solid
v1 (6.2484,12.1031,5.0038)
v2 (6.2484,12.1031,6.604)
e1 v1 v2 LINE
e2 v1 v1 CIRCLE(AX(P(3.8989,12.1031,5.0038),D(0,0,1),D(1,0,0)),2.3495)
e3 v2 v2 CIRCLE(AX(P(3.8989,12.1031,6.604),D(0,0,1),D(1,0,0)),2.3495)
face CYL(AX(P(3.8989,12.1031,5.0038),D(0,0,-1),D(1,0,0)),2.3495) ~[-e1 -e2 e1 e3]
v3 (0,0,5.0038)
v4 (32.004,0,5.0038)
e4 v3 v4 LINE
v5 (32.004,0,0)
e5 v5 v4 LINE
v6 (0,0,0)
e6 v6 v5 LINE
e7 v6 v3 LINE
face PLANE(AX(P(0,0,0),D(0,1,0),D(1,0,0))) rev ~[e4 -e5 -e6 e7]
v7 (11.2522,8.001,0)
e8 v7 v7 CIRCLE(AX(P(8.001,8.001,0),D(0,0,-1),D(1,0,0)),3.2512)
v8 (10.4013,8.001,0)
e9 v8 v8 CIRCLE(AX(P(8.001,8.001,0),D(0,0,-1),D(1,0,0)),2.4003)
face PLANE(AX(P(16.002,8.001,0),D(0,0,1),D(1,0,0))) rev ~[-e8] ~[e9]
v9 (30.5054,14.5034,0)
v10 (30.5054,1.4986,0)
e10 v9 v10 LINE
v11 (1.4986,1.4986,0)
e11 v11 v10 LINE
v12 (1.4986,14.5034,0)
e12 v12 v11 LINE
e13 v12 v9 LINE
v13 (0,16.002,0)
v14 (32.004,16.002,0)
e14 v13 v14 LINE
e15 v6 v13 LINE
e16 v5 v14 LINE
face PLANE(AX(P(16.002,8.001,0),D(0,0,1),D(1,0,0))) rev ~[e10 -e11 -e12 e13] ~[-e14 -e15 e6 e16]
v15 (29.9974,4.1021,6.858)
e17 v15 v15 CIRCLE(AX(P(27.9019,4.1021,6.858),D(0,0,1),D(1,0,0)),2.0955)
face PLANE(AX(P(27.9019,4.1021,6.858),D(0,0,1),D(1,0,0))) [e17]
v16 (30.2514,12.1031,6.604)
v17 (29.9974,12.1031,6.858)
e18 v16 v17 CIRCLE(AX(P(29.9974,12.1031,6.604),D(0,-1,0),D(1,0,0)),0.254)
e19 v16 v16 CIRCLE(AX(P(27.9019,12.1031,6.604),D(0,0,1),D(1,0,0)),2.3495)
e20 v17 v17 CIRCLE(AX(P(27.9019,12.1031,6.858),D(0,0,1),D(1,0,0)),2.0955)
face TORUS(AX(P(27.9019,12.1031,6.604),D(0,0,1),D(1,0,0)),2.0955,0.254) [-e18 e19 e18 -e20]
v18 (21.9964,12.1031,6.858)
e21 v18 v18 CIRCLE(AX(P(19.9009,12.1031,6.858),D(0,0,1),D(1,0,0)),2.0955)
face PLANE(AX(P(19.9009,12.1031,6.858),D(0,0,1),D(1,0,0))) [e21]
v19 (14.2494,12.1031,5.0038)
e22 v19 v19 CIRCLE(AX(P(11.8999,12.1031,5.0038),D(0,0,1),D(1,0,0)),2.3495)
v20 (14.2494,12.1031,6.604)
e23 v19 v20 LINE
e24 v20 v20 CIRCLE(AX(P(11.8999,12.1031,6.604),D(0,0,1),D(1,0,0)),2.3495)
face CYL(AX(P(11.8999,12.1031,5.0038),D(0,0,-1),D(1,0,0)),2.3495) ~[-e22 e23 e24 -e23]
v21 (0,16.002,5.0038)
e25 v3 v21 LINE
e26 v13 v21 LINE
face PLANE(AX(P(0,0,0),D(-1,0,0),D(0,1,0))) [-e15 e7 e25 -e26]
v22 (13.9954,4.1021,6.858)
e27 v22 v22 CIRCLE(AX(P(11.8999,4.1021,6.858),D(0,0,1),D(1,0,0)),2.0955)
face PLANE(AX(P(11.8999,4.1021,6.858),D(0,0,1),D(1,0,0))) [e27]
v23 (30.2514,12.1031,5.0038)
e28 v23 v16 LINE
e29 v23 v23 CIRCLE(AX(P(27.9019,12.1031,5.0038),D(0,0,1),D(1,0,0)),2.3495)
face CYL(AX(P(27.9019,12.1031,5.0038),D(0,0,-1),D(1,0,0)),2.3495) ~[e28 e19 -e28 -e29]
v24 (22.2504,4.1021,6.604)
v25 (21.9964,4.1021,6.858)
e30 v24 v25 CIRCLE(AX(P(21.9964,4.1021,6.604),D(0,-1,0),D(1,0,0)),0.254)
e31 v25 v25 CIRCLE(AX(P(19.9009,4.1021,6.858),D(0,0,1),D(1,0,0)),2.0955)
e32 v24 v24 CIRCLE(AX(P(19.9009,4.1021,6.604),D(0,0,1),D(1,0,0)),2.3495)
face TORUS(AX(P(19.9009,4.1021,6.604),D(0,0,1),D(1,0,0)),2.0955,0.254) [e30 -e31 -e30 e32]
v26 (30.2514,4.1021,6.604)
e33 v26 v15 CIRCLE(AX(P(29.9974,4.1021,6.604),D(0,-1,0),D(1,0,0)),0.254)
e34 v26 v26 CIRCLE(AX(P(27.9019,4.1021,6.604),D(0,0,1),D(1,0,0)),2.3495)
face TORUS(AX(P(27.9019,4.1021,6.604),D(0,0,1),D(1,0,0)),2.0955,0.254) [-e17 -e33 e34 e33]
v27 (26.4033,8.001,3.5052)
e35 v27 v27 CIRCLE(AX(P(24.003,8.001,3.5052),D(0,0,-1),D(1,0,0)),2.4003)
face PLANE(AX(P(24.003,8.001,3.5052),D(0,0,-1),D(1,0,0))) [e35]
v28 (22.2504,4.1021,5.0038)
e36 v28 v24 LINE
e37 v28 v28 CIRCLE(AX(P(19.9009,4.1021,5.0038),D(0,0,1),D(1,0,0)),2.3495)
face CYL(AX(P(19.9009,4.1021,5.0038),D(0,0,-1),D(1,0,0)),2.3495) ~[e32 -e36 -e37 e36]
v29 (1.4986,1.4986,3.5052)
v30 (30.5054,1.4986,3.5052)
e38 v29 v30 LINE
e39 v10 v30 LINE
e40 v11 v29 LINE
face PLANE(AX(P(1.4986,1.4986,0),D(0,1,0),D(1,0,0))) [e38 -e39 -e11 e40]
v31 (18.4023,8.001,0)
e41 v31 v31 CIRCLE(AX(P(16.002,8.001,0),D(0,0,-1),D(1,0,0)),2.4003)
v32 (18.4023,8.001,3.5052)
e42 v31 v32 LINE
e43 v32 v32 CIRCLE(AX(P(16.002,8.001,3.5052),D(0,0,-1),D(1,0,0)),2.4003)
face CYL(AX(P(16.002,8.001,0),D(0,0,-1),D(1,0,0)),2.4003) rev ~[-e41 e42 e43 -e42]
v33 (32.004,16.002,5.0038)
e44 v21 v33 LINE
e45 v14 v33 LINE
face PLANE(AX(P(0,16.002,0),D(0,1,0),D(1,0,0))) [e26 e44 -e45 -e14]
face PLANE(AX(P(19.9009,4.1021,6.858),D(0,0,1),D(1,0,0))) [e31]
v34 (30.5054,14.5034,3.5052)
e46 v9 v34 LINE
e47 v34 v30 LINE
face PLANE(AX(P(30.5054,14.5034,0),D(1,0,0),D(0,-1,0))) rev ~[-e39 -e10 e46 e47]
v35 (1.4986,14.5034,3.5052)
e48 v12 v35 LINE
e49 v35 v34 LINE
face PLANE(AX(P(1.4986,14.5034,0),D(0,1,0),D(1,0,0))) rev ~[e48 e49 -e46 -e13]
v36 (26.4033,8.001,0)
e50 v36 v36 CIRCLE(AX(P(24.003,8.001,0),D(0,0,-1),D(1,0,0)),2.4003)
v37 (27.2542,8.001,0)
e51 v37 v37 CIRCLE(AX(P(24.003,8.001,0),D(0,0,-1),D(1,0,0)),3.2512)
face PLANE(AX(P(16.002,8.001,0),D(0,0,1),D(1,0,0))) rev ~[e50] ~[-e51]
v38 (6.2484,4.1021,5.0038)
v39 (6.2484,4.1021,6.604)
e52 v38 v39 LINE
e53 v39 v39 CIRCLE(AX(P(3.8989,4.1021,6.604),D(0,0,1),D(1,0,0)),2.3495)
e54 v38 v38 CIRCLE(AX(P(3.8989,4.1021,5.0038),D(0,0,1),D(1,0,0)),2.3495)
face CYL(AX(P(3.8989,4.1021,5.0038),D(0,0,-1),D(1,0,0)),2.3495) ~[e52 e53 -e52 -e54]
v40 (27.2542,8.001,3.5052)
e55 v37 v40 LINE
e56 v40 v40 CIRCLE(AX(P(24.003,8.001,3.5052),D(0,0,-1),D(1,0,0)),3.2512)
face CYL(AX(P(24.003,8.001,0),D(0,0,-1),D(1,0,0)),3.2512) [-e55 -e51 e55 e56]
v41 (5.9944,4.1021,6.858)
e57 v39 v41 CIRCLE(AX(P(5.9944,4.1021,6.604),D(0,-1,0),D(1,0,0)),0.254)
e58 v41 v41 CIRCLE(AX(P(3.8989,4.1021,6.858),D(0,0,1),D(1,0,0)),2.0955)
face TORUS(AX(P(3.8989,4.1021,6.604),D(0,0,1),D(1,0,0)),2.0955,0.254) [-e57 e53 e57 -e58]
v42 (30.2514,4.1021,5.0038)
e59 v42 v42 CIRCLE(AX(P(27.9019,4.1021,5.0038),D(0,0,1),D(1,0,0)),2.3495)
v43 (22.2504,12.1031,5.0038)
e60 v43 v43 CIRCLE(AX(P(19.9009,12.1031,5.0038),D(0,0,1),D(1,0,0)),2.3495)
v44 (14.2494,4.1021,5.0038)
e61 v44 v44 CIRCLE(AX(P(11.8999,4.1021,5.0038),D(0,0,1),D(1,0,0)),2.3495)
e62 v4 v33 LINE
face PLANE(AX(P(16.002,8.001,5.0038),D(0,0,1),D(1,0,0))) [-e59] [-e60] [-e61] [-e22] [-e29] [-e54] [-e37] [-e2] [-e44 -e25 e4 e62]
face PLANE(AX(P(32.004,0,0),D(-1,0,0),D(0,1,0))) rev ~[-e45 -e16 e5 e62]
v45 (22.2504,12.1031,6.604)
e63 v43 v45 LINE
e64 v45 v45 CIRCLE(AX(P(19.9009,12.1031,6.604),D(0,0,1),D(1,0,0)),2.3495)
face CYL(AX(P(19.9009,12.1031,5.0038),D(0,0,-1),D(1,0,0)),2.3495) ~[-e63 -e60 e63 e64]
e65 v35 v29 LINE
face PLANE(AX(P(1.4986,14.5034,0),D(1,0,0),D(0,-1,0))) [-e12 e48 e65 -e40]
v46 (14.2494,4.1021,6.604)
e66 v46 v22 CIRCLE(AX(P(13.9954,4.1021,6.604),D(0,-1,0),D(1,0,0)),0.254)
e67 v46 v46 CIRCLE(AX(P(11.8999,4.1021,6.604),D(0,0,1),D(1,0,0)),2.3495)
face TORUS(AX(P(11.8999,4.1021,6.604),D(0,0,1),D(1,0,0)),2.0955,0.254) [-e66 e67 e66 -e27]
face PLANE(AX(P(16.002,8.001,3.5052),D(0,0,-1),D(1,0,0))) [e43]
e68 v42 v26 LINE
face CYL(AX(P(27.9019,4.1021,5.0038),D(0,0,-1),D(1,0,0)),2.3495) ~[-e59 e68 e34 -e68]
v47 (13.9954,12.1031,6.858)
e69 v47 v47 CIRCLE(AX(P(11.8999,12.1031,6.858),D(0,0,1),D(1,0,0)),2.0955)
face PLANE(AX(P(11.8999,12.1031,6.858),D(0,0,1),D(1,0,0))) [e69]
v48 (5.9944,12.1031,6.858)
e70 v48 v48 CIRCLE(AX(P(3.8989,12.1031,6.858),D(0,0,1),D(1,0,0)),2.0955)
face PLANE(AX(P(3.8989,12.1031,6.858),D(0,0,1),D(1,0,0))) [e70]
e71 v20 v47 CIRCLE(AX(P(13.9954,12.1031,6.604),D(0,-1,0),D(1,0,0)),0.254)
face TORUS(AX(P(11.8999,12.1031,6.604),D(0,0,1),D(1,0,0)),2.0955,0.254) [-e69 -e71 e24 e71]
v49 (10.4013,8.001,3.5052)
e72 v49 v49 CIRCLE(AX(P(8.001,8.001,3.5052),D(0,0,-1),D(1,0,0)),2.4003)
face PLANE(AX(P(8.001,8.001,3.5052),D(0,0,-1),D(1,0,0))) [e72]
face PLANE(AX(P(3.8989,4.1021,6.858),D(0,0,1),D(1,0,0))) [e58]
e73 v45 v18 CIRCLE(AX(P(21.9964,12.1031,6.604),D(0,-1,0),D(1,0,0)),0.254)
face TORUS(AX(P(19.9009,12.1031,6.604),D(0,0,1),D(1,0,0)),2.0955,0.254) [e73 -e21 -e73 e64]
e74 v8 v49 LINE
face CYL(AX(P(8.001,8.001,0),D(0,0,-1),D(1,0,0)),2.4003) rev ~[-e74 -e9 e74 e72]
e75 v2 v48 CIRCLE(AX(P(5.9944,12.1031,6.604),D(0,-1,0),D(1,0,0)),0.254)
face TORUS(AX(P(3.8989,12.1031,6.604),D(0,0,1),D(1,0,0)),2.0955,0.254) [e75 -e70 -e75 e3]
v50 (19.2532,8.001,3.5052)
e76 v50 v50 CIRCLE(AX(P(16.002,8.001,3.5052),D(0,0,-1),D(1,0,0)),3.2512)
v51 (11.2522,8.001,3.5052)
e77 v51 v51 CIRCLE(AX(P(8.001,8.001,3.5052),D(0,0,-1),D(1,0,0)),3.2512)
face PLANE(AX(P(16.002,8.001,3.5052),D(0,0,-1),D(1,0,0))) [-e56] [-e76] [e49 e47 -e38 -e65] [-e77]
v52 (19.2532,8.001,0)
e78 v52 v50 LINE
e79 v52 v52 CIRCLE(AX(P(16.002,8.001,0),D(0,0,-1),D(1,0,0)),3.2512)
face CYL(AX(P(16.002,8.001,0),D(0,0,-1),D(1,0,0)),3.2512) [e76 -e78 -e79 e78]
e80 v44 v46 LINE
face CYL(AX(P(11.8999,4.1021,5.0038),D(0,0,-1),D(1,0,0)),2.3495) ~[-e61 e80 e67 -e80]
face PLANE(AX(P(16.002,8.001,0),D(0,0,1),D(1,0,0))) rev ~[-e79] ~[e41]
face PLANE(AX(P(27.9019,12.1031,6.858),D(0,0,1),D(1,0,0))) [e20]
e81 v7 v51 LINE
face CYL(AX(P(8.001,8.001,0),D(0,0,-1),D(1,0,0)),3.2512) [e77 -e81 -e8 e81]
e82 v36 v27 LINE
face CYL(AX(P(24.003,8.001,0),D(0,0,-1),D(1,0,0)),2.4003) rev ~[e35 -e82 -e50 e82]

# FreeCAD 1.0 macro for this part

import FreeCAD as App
import Part
import Sketcher
from FreeCAD import Vector
Q = App.Units.Quantity


def edges_at(feature, points):
    """Names of the edges that pass closest to the given points."""
    edges = feature.Shape.Edges
    near = lambda p: min(range(len(edges)), key=lambda i: edges[i].distToShape(Part.Vertex(*p))[0])
    return sorted({f"Edge{near(p) + 1}" for p in points})

doc = App.newDocument("Part")
body = doc.addObject("PartDesign::Body", "Body")

# Sketch on XY plane
sketch1 = body.newObject("Sketcher::SketchObject", "Sketch")
sketch1.AttachmentSupport = (doc.getObject("XY_Plane"), [""])
sketch1.MapMode = "FlatFace"
sketch1.addGeometry([
    Part.LineSegment(Vector(0, 16, 0), Vector(0, 0, 0)),
    Part.LineSegment(Vector(0, 0, 0), Vector(32, 0, 0)),
    Part.LineSegment(Vector(32, 0, 0), Vector(32, 16, 0)),
    Part.LineSegment(Vector(32, 16, 0), Vector(0, 16, 0)),
], False)
sketch1.addConstraint([
    Sketcher.Constraint("Coincident", 0, 2, 1, 1),
    Sketcher.Constraint("Coincident", 1, 2, 2, 1),
    Sketcher.Constraint("Coincident", 2, 2, 3, 1),
    Sketcher.Constraint("Coincident", 3, 2, 0, 1),
    Sketcher.Constraint("Vertical", 0),
    Sketcher.Constraint("Horizontal", 1),
    Sketcher.Constraint("Vertical", 2),
    Sketcher.Constraint("Horizontal", 3),
    Sketcher.Constraint("Coincident", 0, 2, -1, 1),
    Sketcher.Constraint("DistanceX", 1, 1, 1, 2, Q("1.26 in")),
    Sketcher.Constraint("DistanceY", 0, 2, 0, 1, Q("0.63 in")),
])
pad1 = body.newObject("PartDesign::Pad", "Pad")
pad1.Profile = sketch1
pad1.Length = Q("0.197 in")

# Sketch on XY plane
sketch2 = body.newObject("Sketcher::SketchObject", "Sketch001")
sketch2.AttachmentSupport = (doc.getObject("XY_Plane"), [""])
sketch2.MapMode = "FlatFace"
sketch2.AttachmentOffset = App.Placement(Vector(0, 0, 0.197 * 25.4), App.Rotation())
sketch2.addGeometry([
    Part.Circle(Vector(3.9, 12.1, 0), Vector(0, 0, 1), 2.3),  # 0
    Part.Circle(Vector(3.9, 4.1, 0), Vector(0, 0, 1), 2.3),  # 1
    Part.Circle(Vector(11.9, 12.1, 0), Vector(0, 0, 1), 2.3),  # 2
    Part.Circle(Vector(11.9, 4.1, 0), Vector(0, 0, 1), 2.3),  # 3
    Part.Circle(Vector(19.9, 12.1, 0), Vector(0, 0, 1), 2.3),  # 4
    Part.Circle(Vector(19.9, 4.1, 0), Vector(0, 0, 1), 2.3),  # 5
    Part.Circle(Vector(27.9, 12.1, 0), Vector(0, 0, 1), 2.3),  # 6
    Part.Circle(Vector(27.9, 4.1, 0), Vector(0, 0, 1), 2.3),  # 7
], False)
sketch2.addConstraint([
    Sketcher.Constraint("Equal", 0, 1),
    Sketcher.Constraint("Equal", 1, 2),
    Sketcher.Constraint("Equal", 2, 3),
    Sketcher.Constraint("Equal", 3, 4),
    Sketcher.Constraint("Equal", 4, 5),
    Sketcher.Constraint("Equal", 5, 6),
    Sketcher.Constraint("Equal", 6, 7),
    Sketcher.Constraint("Horizontal", 0, 3, 2, 3),
    Sketcher.Constraint("Horizontal", 1, 3, 3, 3),
    Sketcher.Constraint("Horizontal", 2, 3, 4, 3),
    Sketcher.Constraint("Horizontal", 3, 3, 5, 3),
    Sketcher.Constraint("Horizontal", 4, 3, 6, 3),
    Sketcher.Constraint("Horizontal", 5, 3, 7, 3),
    Sketcher.Constraint("Vertical", 0, 3, 1, 3),
    Sketcher.Constraint("Vertical", 2, 3, 3, 3),
    Sketcher.Constraint("Vertical", 4, 3, 5, 3),
    Sketcher.Constraint("Vertical", 6, 3, 7, 3),
    Sketcher.Constraint("Diameter", 0, Q("0.185 in")),
    Sketcher.Constraint("DistanceX", 0, 3, 4, 3, Q("0.63 in")),
    Sketcher.Constraint("DistanceX", 2, 3, 6, 3, Q("0.63 in")),
    Sketcher.Constraint("DistanceY", 1, 3, 0, 3, Q("0.315 in")),
    Sketcher.Constraint("DistanceX", 0, 3, 2, 3, Q("0.315 in")),
    Sketcher.Constraint("DistanceX", -1, 1, 0, 3, Q("0.1535 in")),
    Sketcher.Constraint("DistanceY", -1, 1, 0, 3, Q("0.4765 in")),
])
pad2 = body.newObject("PartDesign::Pad", "Pad001")
pad2.Profile = sketch2
pad2.Length = Q("0.073 in")
doc.recompute()

fillet = body.newObject("PartDesign::Fillet", "Fillet")
fillet.Base = (pad2, edges_at(pad2, [
    (1.549, 12.103, 6.858),
    (9.55, 12.103, 6.858),
    (17.551, 12.103, 6.858),
    (25.552, 12.103, 6.858),
    (25.552, 4.102, 6.858),
    (17.551, 4.102, 6.858),
    (9.55, 4.102, 6.858),
    (1.549, 4.102, 6.858),
]))
fillet.Radius = Q("0.01 in")

# Sketch on XY plane
sketch3 = body.newObject("Sketcher::SketchObject", "Sketch002")
sketch3.AttachmentSupport = (doc.getObject("XY_Plane"), [""])
sketch3.MapMode = "FlatFace"
sketch3.addGeometry([
    Part.LineSegment(Vector(1.5, 1.5, 0), Vector(1.5, 14.5, 0)),  # 0
    Part.LineSegment(Vector(1.5, 14.5, 0), Vector(30.5, 14.5, 0)),  # 1
    Part.LineSegment(Vector(30.5, 14.5, 0), Vector(30.5, 1.5, 0)),  # 2
    Part.LineSegment(Vector(30.5, 1.5, 0), Vector(1.5, 1.5, 0)),  # 3
    Part.Circle(Vector(8, 8, 0), Vector(0, 0, 1), 3.3),  # 4
    Part.Circle(Vector(16, 8, 0), Vector(0, 0, 1), 3.3),  # 5
    Part.Circle(Vector(24, 8, 0), Vector(0, 0, 1), 3.3),  # 6
    Part.Circle(Vector(8, 8, 0), Vector(0, 0, 1), 2.4),  # 7
    Part.Circle(Vector(16, 8, 0), Vector(0, 0, 1), 2.4),  # 8
    Part.Circle(Vector(24, 8, 0), Vector(0, 0, 1), 2.4),  # 9
], False)
sketch3.addConstraint([
    Sketcher.Constraint("Coincident", 0, 2, 1, 1),
    Sketcher.Constraint("Coincident", 1, 2, 2, 1),
    Sketcher.Constraint("Coincident", 2, 2, 3, 1),
    Sketcher.Constraint("Coincident", 3, 2, 0, 1),
    Sketcher.Constraint("Vertical", 0),
    Sketcher.Constraint("Horizontal", 1),
    Sketcher.Constraint("Vertical", 2),
    Sketcher.Constraint("Horizontal", 3),
    Sketcher.Constraint("Coincident", 7, 3, 4, 3),
    Sketcher.Constraint("Coincident", 8, 3, 5, 3),
    Sketcher.Constraint("Coincident", 9, 3, 6, 3),
    Sketcher.Constraint("Equal", 4, 5),
    Sketcher.Constraint("Equal", 5, 6),
    Sketcher.Constraint("Equal", 7, 8),
    Sketcher.Constraint("Equal", 8, 9),
    Sketcher.Constraint("Horizontal", 4, 3, 5, 3),
    Sketcher.Constraint("Horizontal", 5, 3, 6, 3),
    Sketcher.Constraint("Diameter", 4, Q("0.256 in")),
    Sketcher.Constraint("Diameter", 7, Q("0.189 in")),
    Sketcher.Constraint("DistanceX", 1, 1, 1, 2, Q("1.142 in")),
    Sketcher.Constraint("DistanceY", 0, 1, 0, 2, Q("0.512 in")),
    Sketcher.Constraint("DistanceX", -1, 1, 5, 3, Q("0.63 in")),
    Sketcher.Constraint("DistanceX", 4, 3, 6, 3, Q("0.63 in")),
    Sketcher.Constraint("DistanceX", -1, 1, 4, 3, Q("0.315 in")),
    Sketcher.Constraint("DistanceY", -1, 1, 4, 3, Q("0.315 in")),
    Sketcher.Constraint("DistanceX", -1, 1, 0, 2, Q("0.059 in")),
    Sketcher.Constraint("DistanceY", -1, 1, 0, 2, Q("0.571 in")),
])
pocket1 = body.newObject("PartDesign::Pocket", "Pocket")
pocket1.Profile = sketch3
pocket1.Length = Q("0.138 in")
pocket1.Reversed = True

doc.recompute()
